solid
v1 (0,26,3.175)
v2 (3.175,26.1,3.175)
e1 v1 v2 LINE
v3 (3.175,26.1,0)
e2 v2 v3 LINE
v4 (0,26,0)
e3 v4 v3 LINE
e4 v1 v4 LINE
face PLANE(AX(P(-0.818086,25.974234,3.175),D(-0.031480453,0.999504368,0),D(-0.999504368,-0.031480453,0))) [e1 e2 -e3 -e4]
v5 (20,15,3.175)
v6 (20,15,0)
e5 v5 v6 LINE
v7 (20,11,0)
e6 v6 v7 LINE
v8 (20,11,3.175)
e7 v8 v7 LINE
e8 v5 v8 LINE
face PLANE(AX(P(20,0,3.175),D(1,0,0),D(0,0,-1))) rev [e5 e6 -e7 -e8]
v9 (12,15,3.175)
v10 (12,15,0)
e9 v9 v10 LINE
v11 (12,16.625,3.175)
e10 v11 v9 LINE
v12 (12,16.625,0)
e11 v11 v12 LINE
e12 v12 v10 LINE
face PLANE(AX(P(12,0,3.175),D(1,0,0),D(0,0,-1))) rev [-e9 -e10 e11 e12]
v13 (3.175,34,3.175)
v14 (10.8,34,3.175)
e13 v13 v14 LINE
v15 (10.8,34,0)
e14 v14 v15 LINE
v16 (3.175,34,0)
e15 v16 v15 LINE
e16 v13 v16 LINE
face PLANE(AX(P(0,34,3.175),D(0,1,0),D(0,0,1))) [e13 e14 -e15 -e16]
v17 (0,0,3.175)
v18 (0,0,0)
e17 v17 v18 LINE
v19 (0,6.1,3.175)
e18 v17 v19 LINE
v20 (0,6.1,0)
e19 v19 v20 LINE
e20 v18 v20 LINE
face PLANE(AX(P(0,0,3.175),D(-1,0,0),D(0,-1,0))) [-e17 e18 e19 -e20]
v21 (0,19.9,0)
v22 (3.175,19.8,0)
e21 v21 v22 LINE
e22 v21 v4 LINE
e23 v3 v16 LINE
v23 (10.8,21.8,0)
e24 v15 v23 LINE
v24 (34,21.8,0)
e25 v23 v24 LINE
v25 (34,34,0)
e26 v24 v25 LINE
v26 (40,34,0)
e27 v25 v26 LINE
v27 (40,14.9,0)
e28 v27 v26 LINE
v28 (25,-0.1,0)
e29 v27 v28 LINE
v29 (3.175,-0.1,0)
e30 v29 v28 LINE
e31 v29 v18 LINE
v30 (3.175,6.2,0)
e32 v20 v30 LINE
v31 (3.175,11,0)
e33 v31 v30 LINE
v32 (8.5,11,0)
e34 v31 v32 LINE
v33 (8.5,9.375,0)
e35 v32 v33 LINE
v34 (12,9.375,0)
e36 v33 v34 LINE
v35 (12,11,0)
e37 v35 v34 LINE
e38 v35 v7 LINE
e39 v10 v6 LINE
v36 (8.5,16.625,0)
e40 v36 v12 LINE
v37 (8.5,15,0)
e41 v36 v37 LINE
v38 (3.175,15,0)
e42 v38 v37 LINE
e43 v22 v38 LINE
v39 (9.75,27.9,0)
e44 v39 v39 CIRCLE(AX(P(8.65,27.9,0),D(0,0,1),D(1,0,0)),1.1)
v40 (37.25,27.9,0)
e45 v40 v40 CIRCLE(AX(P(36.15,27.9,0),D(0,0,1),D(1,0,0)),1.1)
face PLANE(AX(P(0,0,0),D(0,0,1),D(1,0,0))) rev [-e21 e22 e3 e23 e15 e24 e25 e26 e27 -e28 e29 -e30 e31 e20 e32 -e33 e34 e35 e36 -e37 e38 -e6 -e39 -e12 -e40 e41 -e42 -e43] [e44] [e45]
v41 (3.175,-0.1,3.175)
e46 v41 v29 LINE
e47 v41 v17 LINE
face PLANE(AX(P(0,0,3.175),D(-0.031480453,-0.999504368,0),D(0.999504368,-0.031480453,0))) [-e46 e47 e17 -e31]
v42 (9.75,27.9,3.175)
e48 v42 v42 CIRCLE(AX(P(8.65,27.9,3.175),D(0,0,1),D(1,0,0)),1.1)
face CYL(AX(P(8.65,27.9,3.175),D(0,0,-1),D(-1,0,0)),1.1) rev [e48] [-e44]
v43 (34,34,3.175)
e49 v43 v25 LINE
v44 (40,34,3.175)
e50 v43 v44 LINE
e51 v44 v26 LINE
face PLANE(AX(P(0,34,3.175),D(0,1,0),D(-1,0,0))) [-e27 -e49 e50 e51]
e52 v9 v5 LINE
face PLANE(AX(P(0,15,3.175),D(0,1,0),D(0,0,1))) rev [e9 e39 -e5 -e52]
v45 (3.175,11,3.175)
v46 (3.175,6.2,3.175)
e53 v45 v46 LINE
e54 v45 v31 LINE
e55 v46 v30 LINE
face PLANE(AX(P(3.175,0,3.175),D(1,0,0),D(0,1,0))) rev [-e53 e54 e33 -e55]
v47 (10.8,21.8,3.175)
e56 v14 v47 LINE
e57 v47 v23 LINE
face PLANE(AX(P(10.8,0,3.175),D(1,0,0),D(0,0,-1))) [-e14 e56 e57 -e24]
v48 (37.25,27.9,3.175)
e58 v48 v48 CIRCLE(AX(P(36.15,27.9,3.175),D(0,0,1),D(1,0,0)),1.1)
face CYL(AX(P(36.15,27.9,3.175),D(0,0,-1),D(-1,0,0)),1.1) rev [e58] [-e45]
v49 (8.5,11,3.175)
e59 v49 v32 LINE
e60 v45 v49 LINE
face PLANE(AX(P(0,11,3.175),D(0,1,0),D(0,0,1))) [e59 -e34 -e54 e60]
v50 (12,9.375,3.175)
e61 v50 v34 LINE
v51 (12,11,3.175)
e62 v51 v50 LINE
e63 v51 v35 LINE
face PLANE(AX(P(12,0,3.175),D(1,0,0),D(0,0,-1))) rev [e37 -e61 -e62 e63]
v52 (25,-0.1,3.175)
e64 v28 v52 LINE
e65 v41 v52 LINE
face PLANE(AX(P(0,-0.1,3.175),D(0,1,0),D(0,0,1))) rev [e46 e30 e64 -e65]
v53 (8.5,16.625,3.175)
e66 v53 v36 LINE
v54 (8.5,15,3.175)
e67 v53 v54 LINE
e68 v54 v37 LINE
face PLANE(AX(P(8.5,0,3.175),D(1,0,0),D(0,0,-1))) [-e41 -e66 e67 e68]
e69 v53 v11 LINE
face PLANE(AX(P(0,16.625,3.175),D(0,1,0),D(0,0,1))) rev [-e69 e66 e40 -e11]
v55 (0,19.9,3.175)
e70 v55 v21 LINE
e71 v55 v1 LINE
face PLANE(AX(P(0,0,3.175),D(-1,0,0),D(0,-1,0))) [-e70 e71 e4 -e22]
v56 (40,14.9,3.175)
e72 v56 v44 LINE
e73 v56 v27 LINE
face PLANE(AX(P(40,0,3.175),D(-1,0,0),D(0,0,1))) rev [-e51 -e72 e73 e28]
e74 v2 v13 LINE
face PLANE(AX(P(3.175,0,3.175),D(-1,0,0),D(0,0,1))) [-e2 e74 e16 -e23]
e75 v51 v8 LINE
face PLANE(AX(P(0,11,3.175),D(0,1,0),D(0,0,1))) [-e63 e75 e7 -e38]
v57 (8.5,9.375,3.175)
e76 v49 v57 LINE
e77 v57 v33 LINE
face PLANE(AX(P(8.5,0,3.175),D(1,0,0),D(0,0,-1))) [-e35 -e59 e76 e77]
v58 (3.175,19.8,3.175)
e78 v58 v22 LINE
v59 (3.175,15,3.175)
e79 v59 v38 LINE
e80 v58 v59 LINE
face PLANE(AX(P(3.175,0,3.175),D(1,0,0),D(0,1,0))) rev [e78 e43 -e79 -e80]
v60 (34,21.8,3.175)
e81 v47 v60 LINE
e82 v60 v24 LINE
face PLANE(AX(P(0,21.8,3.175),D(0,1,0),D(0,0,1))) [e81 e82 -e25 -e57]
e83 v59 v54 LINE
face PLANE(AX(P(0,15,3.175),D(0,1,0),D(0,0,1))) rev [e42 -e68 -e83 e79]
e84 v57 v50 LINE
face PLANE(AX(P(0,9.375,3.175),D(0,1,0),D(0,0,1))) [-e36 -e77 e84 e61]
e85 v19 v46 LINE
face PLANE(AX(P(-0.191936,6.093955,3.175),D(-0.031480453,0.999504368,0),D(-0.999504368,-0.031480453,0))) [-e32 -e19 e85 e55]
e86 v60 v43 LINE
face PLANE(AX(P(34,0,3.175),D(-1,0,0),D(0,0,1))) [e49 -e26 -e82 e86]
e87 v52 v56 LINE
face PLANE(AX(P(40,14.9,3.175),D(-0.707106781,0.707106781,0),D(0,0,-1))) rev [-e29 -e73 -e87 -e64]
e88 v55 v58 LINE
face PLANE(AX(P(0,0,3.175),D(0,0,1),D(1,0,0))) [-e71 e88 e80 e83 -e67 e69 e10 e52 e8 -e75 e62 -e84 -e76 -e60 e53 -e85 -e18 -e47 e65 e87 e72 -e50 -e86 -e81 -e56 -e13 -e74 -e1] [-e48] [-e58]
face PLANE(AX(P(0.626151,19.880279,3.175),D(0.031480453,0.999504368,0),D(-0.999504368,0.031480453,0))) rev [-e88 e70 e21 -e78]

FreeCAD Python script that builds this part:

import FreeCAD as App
import Part
import Sketcher

V = App.Vector


def edges_at(feature, points):
    """Names of the edges that pass closest to the given points."""
    edges = feature.Shape.Edges
    near = lambda p: min(range(len(edges)), key=lambda i: edges[i].distToShape(Part.Vertex(*p))[0])
    return sorted({f"Edge{near(p) + 1}" for p in points})


def add_polygon(sketch, points):
    """Adds a closed chain of lines whose ends are joined by coincident constraints."""
    first, n = sketch.GeometryCount, len(points)
    for a, b in zip(points, points[1:] + points[:1]):
        sketch.addGeometry(Part.LineSegment(App.Vector(*a, 0), App.Vector(*b, 0)), False)
    for i in range(n):
        sketch.addConstraint(Sketcher.Constraint("Coincident", first + i, 2, first + (i + 1) % n, 1))

doc = App.newDocument("Part")
body = doc.addObject("PartDesign::Body", "Body")

# Sketch on XY plane
sketch1 = doc.addObject("Sketcher::SketchObject", "Sketch")
body.addObject(sketch1)
sketch1.AttachmentSupport = (doc.XY_Plane, [""])
sketch1.MapMode = "FlatFace"
add_polygon(sketch1, [(10.8, 21.8), (10.8, 34), (3.175, 34), (3.175, 26.1), (0, 26), (0, 19.9), (3.175, 19.8), (3.175, 15), (8.5, 15), (8.5, 16.625), (12, 16.625), (12, 15), (20, 15), (20, 11), (12, 11), (12, 9.375), (8.5, 9.375), (8.5, 11), (3.175, 11), (3.175, 6.2), (0, 6.1), (0, 0), (3.175, -0.1), (40, -0.1), (40, 34), (34, 34), (34, 21.8)])  # lines 0-26
sketch1.addGeometry(Part.Circle(V(8.65, 27.9, 0), V(0, 0, 1), 1.1), False)  # 27
sketch1.addGeometry(Part.Circle(V(36.15, 27.9, 0), V(0, 0, 1), 1.1), False)  # 28
sketch1.addConstraint([
    Sketcher.Constraint("Vertical", 0),
    Sketcher.Constraint("Horizontal", 1),
    Sketcher.Constraint("Vertical", 2),
    Sketcher.Constraint("Vertical", 4),
    Sketcher.Constraint("Vertical", 6),
    Sketcher.Constraint("Horizontal", 7),
    Sketcher.Constraint("Vertical", 8),
    Sketcher.Constraint("Horizontal", 9),
    Sketcher.Constraint("Vertical", 10),
    Sketcher.Constraint("Horizontal", 11),
    Sketcher.Constraint("Vertical", 12),
    Sketcher.Constraint("Horizontal", 13),
    Sketcher.Constraint("Vertical", 14),
    Sketcher.Constraint("Horizontal", 15),
    Sketcher.Constraint("Vertical", 16),
    Sketcher.Constraint("Horizontal", 17),
    Sketcher.Constraint("Vertical", 18),
    Sketcher.Constraint("Vertical", 20),
    Sketcher.Constraint("Horizontal", 22),
    Sketcher.Constraint("Vertical", 23),
    Sketcher.Constraint("Horizontal", 24),
    Sketcher.Constraint("Vertical", 25),
    Sketcher.Constraint("Horizontal", 26),
    Sketcher.Constraint("Coincident", 20, 2, -1, 1),
    Sketcher.Constraint("Equal", 27, 28),
    Sketcher.Constraint("PointOnObject", 3, 2, -2),
    Sketcher.Constraint("Parallel", 3, 19),
    Sketcher.Constraint("Parallel", 5, 21),
    Sketcher.Constraint("Horizontal", 27, 3, 28, 3),
    Sketcher.Constraint("Horizontal", 7, 2, 10, 2),
    Sketcher.Constraint("Horizontal", 13, 2, 16, 2),
    Sketcher.Constraint("Horizontal", 1, 2, 23, 2),
    Sketcher.Constraint("Vertical", 2, 2, 5, 2),
    Sketcher.Constraint("Vertical", 10, 2, 13, 2),
    Sketcher.Constraint("Vertical", 8, 2, 15, 2),
    Sketcher.Constraint("Vertical", 6, 2, 17, 2),
    Sketcher.Constraint("Vertical", 18, 2, 21, 2),
    Sketcher.Constraint("Equal", 10, 14),
    Sketcher.Constraint("Equal", 6, 18),
    Sketcher.Constraint("Equal", 4, 20),
    Sketcher.Constraint("Equal", 3, 5),
    Sketcher.Constraint("Diameter", 27, 2.2),
    Sketcher.Constraint("DistanceX", 11, 1, 11, 2, 8.0),
    Sketcher.Constraint("DistanceX", 24, 2, 24, 1, 6.0),
    Sketcher.Constraint("DistanceY", 12, 2, 12, 1, 4.0),
    Sketcher.Constraint("DistanceX", 9, 1, 9, 2, 3.5),
    Sketcher.Constraint("DistanceX", 26, 2, 26, 1, 23.2),
    Sketcher.Constraint("DistanceY", 0, 1, 0, 2, 12.2),
    Sketcher.Constraint("DistanceY", 2, 2, 2, 1, 7.9),
    Sketcher.Constraint("DistanceY", 4, 2, 4, 1, 6.1),
    Sketcher.Constraint("DistanceY", 6, 2, 6, 1, 4.8),
    Sketcher.Constraint("DistanceY", 23, 1, 23, 2, 34.1),
    Sketcher.Constraint("DistanceX", -1, 1, 9, 2, 12.0),
    Sketcher.Constraint("DistanceX", -1, 1, 22, 2, 40.0),
    Sketcher.Constraint("DistanceY", 4, 2, 27, 3, 8.0),
    Sketcher.Constraint("DistanceX", 27, 3, 28, 3, 27.5),
    Sketcher.Constraint("DistanceX", 1, 2, 1, 1, 7.625),
    Sketcher.Constraint("DistanceY", 8, 1, 8, 2, 1.625),
    Sketcher.Constraint("DistanceX", -1, 1, 27, 3, 8.65),
])
pad1 = doc.addObject("PartDesign::Pad", "Pad")
body.addObject(pad1)
pad1.Profile = sketch1
pad1.Length = 3.175
doc.recompute()

chamfer = doc.addObject("PartDesign::Chamfer", "Chamfer")
body.addObject(chamfer)
chamfer.Base = (pad1, edges_at(pad1, [(40, -0.1, 1.587)]))
chamfer.Size = 15

doc.recompute()
